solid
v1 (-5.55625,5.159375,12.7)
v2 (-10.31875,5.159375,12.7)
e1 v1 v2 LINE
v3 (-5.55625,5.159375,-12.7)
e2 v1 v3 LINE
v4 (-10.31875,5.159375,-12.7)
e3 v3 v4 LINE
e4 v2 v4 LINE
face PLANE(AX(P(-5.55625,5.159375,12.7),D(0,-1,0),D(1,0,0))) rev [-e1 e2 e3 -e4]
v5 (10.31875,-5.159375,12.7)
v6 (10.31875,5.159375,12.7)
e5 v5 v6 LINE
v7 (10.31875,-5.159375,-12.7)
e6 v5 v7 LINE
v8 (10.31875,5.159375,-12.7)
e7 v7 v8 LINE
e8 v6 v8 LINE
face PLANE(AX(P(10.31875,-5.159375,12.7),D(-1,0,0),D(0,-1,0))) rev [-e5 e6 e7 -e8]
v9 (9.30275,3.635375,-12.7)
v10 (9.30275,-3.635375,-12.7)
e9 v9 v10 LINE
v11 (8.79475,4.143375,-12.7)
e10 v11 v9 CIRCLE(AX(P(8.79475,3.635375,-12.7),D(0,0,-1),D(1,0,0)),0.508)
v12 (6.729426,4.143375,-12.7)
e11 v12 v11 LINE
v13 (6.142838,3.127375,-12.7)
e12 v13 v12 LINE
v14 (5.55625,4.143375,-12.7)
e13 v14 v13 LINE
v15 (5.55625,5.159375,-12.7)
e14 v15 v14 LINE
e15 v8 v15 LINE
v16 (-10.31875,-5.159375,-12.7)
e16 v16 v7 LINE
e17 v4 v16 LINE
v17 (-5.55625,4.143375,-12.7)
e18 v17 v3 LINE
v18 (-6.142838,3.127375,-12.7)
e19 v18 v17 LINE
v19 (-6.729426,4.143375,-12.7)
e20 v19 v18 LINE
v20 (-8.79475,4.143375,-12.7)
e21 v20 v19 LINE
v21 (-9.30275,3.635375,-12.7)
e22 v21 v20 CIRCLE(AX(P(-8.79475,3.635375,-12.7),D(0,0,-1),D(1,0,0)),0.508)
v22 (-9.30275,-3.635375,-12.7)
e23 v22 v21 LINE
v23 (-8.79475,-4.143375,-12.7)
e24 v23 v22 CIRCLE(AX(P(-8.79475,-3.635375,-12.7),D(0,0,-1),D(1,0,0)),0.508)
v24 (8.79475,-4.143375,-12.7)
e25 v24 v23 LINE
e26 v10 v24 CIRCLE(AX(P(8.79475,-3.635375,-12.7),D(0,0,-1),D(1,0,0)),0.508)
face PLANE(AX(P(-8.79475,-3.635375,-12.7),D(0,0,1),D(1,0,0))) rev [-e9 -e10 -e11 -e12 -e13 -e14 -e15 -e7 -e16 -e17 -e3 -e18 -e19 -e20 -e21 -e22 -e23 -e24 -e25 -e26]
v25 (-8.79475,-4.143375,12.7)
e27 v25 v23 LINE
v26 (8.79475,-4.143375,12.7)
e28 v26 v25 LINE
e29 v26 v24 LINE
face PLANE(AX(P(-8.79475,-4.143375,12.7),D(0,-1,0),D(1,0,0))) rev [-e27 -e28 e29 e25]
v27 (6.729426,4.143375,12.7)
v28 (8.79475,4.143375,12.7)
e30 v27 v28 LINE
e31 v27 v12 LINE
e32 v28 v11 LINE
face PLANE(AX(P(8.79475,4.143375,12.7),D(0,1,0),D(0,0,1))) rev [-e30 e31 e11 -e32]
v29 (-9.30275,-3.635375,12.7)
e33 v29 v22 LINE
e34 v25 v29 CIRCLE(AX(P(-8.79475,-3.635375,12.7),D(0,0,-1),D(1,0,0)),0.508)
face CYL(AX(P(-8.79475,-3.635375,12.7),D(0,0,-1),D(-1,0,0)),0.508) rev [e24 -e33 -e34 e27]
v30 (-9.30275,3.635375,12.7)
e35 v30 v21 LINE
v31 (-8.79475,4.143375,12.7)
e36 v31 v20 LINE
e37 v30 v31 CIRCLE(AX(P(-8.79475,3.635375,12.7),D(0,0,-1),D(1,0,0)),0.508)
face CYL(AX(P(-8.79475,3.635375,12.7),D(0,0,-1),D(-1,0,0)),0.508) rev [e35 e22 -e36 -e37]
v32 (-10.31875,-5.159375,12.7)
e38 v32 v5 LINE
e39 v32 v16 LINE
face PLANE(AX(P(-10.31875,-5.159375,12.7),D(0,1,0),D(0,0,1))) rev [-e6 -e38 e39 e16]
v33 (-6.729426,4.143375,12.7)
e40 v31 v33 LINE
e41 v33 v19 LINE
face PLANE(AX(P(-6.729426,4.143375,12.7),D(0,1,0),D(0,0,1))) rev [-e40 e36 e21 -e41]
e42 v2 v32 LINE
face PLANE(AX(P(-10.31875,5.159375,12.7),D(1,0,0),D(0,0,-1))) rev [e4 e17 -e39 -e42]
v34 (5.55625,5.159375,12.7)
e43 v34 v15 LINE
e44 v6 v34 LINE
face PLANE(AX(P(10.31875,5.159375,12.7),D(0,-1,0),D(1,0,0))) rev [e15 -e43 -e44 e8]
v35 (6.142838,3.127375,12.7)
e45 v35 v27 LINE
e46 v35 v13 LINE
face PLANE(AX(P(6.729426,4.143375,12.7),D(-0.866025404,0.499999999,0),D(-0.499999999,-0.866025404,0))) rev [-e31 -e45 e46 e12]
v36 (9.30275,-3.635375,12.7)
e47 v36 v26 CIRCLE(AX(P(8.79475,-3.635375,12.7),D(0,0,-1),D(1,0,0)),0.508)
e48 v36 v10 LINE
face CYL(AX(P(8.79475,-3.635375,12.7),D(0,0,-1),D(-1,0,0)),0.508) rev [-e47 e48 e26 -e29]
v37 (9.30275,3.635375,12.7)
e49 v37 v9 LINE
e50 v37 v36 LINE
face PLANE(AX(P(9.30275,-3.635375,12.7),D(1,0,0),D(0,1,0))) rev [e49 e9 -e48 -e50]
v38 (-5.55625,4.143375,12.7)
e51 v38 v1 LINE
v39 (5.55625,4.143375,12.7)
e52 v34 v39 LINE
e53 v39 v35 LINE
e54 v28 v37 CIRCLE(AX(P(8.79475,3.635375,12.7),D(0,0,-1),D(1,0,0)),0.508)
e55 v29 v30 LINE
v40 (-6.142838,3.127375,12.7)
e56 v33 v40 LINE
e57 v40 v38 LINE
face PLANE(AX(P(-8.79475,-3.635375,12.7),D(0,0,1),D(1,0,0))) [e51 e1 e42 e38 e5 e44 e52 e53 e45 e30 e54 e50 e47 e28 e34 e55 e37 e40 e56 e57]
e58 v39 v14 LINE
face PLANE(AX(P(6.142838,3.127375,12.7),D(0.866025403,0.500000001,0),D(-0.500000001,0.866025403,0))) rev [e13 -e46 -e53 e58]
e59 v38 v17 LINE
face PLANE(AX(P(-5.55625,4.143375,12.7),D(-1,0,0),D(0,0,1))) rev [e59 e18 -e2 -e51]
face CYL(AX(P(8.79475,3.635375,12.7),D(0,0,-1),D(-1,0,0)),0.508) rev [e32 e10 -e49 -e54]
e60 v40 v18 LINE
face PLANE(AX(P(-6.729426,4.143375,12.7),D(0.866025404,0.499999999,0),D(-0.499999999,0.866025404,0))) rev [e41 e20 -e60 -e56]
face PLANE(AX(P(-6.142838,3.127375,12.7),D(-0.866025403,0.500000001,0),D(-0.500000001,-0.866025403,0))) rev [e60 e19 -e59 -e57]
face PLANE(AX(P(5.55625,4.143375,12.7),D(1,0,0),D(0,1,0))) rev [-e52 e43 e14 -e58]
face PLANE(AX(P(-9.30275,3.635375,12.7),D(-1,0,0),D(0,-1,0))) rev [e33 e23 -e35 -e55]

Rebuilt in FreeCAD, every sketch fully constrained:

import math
import FreeCAD as App
import Part
import Sketcher
from FreeCAD import Vector
Q = App.Units.Quantity

doc = App.newDocument("Part")
body = doc.addObject("PartDesign::Body", "Body")

sketch1 = body.newObject("Sketcher::SketchObject", "Sketch")
sketch1.AttachmentSupport = (doc.getObject("XY_Plane"), [""])
sketch1.MapMode = "FlatFace"
sketch1.addGeometry(Part.LineSegment(Vector(-5.6, 5.2, 0), Vector(-10.3, 5.2, 0)), False)
sketch1.addGeometry(Part.LineSegment(Vector(-10.3, 5.2, 0), Vector(-10.3, -5.2, 0)), False)
sketch1.addGeometry(Part.LineSegment(Vector(-10.3, -5.2, 0), Vector(10.3, -5.2, 0)), False)
sketch1.addGeometry(Part.LineSegment(Vector(10.3, -5.2, 0), Vector(10.3, 5.2, 0)), False)
sketch1.addGeometry(Part.LineSegment(Vector(10.3, 5.2, 0), Vector(5.6, 5.2, 0)), False)
sketch1.addGeometry(Part.LineSegment(Vector(5.6, 5.2, 0), Vector(5.6, 4.1, 0)), False)
sketch1.addGeometry(Part.LineSegment(Vector(5.6, 4.1, 0), Vector(6.1, 3.1, 0)), False)
sketch1.addGeometry(Part.LineSegment(Vector(6.1, 3.1, 0), Vector(6.7, 4.1, 0)), False)
sketch1.addGeometry(Part.LineSegment(Vector(6.7, 4.1, 0), Vector(8.8, 4.1, 0)), False)
sketch1.addGeometry(Part.ArcOfCircle(Part.Circle(Vector(8.8, 3.6, 0), Vector(0, 0, 1), 0.5), math.radians(0), math.radians(90)), False)
sketch1.addGeometry(Part.LineSegment(Vector(9.3, 3.6, 0), Vector(9.3, -3.6, 0)), False)
sketch1.addGeometry(Part.ArcOfCircle(Part.Circle(Vector(8.8, -3.6, 0), Vector(0, 0, 1), 0.5), math.radians(-90), math.radians(0)), False)
sketch1.addGeometry(Part.LineSegment(Vector(8.8, -4.1, 0), Vector(-8.8, -4.1, 0)), False)
sketch1.addGeometry(Part.ArcOfCircle(Part.Circle(Vector(-8.8, -3.6, 0), Vector(0, 0, 1), 0.5), math.radians(180), math.radians(270)), False)
sketch1.addGeometry(Part.LineSegment(Vector(-9.3, -3.6, 0), Vector(-9.3, 3.6, 0)), False)
sketch1.addGeometry(Part.ArcOfCircle(Part.Circle(Vector(-8.8, 3.6, 0), Vector(0, 0, 1), 0.5), math.radians(90), math.radians(180)), False)
sketch1.addGeometry(Part.LineSegment(Vector(-8.8, 4.1, 0), Vector(-6.7, 4.1, 0)), False)
sketch1.addGeometry(Part.LineSegment(Vector(-6.7, 4.1, 0), Vector(-6.1, 3.1, 0)), False)
sketch1.addGeometry(Part.LineSegment(Vector(-6.1, 3.1, 0), Vector(-5.6, 4.1, 0)), False)
sketch1.addGeometry(Part.LineSegment(Vector(-5.6, 4.1, 0), Vector(-5.6, 5.2, 0)), False)
sketch1.addConstraint(Sketcher.Constraint("Coincident", 0, 2, 1, 1))
sketch1.addConstraint(Sketcher.Constraint("Coincident", 1, 2, 2, 1))
sketch1.addConstraint(Sketcher.Constraint("Coincident", 2, 2, 3, 1))
sketch1.addConstraint(Sketcher.Constraint("Coincident", 3, 2, 4, 1))
sketch1.addConstraint(Sketcher.Constraint("Coincident", 4, 2, 5, 1))
sketch1.addConstraint(Sketcher.Constraint("Coincident", 5, 2, 6, 1))
sketch1.addConstraint(Sketcher.Constraint("Coincident", 6, 2, 7, 1))
sketch1.addConstraint(Sketcher.Constraint("Coincident", 7, 2, 8, 1))
sketch1.addConstraint(Sketcher.Constraint("Tangent", 8, 2, 9, 2))
sketch1.addConstraint(Sketcher.Constraint("Tangent", 9, 1, 10, 1))
sketch1.addConstraint(Sketcher.Constraint("Tangent", 10, 2, 11, 2))
sketch1.addConstraint(Sketcher.Constraint("Tangent", 11, 1, 12, 1))
sketch1.addConstraint(Sketcher.Constraint("Tangent", 12, 2, 13, 2))
sketch1.addConstraint(Sketcher.Constraint("Tangent", 13, 1, 14, 1))
sketch1.addConstraint(Sketcher.Constraint("Tangent", 14, 2, 15, 2))
sketch1.addConstraint(Sketcher.Constraint("Tangent", 15, 1, 16, 1))
sketch1.addConstraint(Sketcher.Constraint("Coincident", 16, 2, 17, 1))
sketch1.addConstraint(Sketcher.Constraint("Coincident", 17, 2, 18, 1))
sketch1.addConstraint(Sketcher.Constraint("Coincident", 18, 2, 19, 1))
sketch1.addConstraint(Sketcher.Constraint("Coincident", 19, 2, 0, 1))
sketch1.addConstraint(Sketcher.Constraint("Horizontal", 0))
sketch1.addConstraint(Sketcher.Constraint("Vertical", 1))
sketch1.addConstraint(Sketcher.Constraint("Horizontal", 2))
sketch1.addConstraint(Sketcher.Constraint("Vertical", 3))
sketch1.addConstraint(Sketcher.Constraint("Horizontal", 4))
sketch1.addConstraint(Sketcher.Constraint("Vertical", 5))
sketch1.addConstraint(Sketcher.Constraint("Horizontal", 8))
sketch1.addConstraint(Sketcher.Constraint("Vertical", 10))
sketch1.addConstraint(Sketcher.Constraint("Horizontal", 12))
sketch1.addConstraint(Sketcher.Constraint("Vertical", 14))
sketch1.addConstraint(Sketcher.Constraint("Horizontal", 16))
sketch1.addConstraint(Sketcher.Constraint("Vertical", 19))
sketch1.addConstraint(Sketcher.Constraint("Equal", 9, 11))
sketch1.addConstraint(Sketcher.Constraint("Equal", 11, 13))
sketch1.addConstraint(Sketcher.Constraint("Equal", 13, 15))
sketch1.addConstraint(Sketcher.Constraint("Symmetric", 9, 3, 13, 3, -1, 1))
sketch1.addConstraint(Sketcher.Constraint("Symmetric", 0, 2, 2, 2, -1, 1))
sketch1.addConstraint(Sketcher.Constraint("Symmetric", 7, 2, 16, 2, -2))
sketch1.addConstraint(Sketcher.Constraint("Symmetric", 6, 2, 17, 2, -2))
sketch1.addConstraint(Sketcher.Constraint("Symmetric", 5, 2, 18, 2, -2))
sketch1.addConstraint(Sketcher.Constraint("Parallel", 6, 17))
sketch1.addConstraint(Sketcher.Constraint("Horizontal", 0, 2, 3, 2))
sketch1.addConstraint(Sketcher.Constraint("Horizontal", 5, 2, 7, 2))
sketch1.addConstraint(Sketcher.Constraint("Radius", 9, Q("0.02 in")))
sketch1.addConstraint(Sketcher.Constraint("Angle", 6, Q("-60 deg")))
sketch1.addConstraint(Sketcher.Constraint("DistanceY", 5, 2, 5, 1, Q("0.04 in")))
sketch1.addConstraint(Sketcher.Constraint("DistanceX", 0, 2, 0, 1, Q("0.1875 in")))
sketch1.addConstraint(Sketcher.Constraint("DistanceX", 2, 1, 2, 2, Q("0.8125 in")))
sketch1.addConstraint(Sketcher.Constraint("DistanceY", 1, 2, 1, 1, Q("0.40625 in")))
sketch1.addConstraint(Sketcher.Constraint("DistanceX", 0, 2, 15, 3, Q("0.06 in")))
sketch1.addConstraint(Sketcher.Constraint("DistanceY", 6, 2, 5, 2, Q("0.04 in")))
pad1 = body.newObject("PartDesign::Pad", "Pad")
pad1.Profile = sketch1
pad1.Length = Q("1 in")
pad1.Midplane = True

doc.recompute()
